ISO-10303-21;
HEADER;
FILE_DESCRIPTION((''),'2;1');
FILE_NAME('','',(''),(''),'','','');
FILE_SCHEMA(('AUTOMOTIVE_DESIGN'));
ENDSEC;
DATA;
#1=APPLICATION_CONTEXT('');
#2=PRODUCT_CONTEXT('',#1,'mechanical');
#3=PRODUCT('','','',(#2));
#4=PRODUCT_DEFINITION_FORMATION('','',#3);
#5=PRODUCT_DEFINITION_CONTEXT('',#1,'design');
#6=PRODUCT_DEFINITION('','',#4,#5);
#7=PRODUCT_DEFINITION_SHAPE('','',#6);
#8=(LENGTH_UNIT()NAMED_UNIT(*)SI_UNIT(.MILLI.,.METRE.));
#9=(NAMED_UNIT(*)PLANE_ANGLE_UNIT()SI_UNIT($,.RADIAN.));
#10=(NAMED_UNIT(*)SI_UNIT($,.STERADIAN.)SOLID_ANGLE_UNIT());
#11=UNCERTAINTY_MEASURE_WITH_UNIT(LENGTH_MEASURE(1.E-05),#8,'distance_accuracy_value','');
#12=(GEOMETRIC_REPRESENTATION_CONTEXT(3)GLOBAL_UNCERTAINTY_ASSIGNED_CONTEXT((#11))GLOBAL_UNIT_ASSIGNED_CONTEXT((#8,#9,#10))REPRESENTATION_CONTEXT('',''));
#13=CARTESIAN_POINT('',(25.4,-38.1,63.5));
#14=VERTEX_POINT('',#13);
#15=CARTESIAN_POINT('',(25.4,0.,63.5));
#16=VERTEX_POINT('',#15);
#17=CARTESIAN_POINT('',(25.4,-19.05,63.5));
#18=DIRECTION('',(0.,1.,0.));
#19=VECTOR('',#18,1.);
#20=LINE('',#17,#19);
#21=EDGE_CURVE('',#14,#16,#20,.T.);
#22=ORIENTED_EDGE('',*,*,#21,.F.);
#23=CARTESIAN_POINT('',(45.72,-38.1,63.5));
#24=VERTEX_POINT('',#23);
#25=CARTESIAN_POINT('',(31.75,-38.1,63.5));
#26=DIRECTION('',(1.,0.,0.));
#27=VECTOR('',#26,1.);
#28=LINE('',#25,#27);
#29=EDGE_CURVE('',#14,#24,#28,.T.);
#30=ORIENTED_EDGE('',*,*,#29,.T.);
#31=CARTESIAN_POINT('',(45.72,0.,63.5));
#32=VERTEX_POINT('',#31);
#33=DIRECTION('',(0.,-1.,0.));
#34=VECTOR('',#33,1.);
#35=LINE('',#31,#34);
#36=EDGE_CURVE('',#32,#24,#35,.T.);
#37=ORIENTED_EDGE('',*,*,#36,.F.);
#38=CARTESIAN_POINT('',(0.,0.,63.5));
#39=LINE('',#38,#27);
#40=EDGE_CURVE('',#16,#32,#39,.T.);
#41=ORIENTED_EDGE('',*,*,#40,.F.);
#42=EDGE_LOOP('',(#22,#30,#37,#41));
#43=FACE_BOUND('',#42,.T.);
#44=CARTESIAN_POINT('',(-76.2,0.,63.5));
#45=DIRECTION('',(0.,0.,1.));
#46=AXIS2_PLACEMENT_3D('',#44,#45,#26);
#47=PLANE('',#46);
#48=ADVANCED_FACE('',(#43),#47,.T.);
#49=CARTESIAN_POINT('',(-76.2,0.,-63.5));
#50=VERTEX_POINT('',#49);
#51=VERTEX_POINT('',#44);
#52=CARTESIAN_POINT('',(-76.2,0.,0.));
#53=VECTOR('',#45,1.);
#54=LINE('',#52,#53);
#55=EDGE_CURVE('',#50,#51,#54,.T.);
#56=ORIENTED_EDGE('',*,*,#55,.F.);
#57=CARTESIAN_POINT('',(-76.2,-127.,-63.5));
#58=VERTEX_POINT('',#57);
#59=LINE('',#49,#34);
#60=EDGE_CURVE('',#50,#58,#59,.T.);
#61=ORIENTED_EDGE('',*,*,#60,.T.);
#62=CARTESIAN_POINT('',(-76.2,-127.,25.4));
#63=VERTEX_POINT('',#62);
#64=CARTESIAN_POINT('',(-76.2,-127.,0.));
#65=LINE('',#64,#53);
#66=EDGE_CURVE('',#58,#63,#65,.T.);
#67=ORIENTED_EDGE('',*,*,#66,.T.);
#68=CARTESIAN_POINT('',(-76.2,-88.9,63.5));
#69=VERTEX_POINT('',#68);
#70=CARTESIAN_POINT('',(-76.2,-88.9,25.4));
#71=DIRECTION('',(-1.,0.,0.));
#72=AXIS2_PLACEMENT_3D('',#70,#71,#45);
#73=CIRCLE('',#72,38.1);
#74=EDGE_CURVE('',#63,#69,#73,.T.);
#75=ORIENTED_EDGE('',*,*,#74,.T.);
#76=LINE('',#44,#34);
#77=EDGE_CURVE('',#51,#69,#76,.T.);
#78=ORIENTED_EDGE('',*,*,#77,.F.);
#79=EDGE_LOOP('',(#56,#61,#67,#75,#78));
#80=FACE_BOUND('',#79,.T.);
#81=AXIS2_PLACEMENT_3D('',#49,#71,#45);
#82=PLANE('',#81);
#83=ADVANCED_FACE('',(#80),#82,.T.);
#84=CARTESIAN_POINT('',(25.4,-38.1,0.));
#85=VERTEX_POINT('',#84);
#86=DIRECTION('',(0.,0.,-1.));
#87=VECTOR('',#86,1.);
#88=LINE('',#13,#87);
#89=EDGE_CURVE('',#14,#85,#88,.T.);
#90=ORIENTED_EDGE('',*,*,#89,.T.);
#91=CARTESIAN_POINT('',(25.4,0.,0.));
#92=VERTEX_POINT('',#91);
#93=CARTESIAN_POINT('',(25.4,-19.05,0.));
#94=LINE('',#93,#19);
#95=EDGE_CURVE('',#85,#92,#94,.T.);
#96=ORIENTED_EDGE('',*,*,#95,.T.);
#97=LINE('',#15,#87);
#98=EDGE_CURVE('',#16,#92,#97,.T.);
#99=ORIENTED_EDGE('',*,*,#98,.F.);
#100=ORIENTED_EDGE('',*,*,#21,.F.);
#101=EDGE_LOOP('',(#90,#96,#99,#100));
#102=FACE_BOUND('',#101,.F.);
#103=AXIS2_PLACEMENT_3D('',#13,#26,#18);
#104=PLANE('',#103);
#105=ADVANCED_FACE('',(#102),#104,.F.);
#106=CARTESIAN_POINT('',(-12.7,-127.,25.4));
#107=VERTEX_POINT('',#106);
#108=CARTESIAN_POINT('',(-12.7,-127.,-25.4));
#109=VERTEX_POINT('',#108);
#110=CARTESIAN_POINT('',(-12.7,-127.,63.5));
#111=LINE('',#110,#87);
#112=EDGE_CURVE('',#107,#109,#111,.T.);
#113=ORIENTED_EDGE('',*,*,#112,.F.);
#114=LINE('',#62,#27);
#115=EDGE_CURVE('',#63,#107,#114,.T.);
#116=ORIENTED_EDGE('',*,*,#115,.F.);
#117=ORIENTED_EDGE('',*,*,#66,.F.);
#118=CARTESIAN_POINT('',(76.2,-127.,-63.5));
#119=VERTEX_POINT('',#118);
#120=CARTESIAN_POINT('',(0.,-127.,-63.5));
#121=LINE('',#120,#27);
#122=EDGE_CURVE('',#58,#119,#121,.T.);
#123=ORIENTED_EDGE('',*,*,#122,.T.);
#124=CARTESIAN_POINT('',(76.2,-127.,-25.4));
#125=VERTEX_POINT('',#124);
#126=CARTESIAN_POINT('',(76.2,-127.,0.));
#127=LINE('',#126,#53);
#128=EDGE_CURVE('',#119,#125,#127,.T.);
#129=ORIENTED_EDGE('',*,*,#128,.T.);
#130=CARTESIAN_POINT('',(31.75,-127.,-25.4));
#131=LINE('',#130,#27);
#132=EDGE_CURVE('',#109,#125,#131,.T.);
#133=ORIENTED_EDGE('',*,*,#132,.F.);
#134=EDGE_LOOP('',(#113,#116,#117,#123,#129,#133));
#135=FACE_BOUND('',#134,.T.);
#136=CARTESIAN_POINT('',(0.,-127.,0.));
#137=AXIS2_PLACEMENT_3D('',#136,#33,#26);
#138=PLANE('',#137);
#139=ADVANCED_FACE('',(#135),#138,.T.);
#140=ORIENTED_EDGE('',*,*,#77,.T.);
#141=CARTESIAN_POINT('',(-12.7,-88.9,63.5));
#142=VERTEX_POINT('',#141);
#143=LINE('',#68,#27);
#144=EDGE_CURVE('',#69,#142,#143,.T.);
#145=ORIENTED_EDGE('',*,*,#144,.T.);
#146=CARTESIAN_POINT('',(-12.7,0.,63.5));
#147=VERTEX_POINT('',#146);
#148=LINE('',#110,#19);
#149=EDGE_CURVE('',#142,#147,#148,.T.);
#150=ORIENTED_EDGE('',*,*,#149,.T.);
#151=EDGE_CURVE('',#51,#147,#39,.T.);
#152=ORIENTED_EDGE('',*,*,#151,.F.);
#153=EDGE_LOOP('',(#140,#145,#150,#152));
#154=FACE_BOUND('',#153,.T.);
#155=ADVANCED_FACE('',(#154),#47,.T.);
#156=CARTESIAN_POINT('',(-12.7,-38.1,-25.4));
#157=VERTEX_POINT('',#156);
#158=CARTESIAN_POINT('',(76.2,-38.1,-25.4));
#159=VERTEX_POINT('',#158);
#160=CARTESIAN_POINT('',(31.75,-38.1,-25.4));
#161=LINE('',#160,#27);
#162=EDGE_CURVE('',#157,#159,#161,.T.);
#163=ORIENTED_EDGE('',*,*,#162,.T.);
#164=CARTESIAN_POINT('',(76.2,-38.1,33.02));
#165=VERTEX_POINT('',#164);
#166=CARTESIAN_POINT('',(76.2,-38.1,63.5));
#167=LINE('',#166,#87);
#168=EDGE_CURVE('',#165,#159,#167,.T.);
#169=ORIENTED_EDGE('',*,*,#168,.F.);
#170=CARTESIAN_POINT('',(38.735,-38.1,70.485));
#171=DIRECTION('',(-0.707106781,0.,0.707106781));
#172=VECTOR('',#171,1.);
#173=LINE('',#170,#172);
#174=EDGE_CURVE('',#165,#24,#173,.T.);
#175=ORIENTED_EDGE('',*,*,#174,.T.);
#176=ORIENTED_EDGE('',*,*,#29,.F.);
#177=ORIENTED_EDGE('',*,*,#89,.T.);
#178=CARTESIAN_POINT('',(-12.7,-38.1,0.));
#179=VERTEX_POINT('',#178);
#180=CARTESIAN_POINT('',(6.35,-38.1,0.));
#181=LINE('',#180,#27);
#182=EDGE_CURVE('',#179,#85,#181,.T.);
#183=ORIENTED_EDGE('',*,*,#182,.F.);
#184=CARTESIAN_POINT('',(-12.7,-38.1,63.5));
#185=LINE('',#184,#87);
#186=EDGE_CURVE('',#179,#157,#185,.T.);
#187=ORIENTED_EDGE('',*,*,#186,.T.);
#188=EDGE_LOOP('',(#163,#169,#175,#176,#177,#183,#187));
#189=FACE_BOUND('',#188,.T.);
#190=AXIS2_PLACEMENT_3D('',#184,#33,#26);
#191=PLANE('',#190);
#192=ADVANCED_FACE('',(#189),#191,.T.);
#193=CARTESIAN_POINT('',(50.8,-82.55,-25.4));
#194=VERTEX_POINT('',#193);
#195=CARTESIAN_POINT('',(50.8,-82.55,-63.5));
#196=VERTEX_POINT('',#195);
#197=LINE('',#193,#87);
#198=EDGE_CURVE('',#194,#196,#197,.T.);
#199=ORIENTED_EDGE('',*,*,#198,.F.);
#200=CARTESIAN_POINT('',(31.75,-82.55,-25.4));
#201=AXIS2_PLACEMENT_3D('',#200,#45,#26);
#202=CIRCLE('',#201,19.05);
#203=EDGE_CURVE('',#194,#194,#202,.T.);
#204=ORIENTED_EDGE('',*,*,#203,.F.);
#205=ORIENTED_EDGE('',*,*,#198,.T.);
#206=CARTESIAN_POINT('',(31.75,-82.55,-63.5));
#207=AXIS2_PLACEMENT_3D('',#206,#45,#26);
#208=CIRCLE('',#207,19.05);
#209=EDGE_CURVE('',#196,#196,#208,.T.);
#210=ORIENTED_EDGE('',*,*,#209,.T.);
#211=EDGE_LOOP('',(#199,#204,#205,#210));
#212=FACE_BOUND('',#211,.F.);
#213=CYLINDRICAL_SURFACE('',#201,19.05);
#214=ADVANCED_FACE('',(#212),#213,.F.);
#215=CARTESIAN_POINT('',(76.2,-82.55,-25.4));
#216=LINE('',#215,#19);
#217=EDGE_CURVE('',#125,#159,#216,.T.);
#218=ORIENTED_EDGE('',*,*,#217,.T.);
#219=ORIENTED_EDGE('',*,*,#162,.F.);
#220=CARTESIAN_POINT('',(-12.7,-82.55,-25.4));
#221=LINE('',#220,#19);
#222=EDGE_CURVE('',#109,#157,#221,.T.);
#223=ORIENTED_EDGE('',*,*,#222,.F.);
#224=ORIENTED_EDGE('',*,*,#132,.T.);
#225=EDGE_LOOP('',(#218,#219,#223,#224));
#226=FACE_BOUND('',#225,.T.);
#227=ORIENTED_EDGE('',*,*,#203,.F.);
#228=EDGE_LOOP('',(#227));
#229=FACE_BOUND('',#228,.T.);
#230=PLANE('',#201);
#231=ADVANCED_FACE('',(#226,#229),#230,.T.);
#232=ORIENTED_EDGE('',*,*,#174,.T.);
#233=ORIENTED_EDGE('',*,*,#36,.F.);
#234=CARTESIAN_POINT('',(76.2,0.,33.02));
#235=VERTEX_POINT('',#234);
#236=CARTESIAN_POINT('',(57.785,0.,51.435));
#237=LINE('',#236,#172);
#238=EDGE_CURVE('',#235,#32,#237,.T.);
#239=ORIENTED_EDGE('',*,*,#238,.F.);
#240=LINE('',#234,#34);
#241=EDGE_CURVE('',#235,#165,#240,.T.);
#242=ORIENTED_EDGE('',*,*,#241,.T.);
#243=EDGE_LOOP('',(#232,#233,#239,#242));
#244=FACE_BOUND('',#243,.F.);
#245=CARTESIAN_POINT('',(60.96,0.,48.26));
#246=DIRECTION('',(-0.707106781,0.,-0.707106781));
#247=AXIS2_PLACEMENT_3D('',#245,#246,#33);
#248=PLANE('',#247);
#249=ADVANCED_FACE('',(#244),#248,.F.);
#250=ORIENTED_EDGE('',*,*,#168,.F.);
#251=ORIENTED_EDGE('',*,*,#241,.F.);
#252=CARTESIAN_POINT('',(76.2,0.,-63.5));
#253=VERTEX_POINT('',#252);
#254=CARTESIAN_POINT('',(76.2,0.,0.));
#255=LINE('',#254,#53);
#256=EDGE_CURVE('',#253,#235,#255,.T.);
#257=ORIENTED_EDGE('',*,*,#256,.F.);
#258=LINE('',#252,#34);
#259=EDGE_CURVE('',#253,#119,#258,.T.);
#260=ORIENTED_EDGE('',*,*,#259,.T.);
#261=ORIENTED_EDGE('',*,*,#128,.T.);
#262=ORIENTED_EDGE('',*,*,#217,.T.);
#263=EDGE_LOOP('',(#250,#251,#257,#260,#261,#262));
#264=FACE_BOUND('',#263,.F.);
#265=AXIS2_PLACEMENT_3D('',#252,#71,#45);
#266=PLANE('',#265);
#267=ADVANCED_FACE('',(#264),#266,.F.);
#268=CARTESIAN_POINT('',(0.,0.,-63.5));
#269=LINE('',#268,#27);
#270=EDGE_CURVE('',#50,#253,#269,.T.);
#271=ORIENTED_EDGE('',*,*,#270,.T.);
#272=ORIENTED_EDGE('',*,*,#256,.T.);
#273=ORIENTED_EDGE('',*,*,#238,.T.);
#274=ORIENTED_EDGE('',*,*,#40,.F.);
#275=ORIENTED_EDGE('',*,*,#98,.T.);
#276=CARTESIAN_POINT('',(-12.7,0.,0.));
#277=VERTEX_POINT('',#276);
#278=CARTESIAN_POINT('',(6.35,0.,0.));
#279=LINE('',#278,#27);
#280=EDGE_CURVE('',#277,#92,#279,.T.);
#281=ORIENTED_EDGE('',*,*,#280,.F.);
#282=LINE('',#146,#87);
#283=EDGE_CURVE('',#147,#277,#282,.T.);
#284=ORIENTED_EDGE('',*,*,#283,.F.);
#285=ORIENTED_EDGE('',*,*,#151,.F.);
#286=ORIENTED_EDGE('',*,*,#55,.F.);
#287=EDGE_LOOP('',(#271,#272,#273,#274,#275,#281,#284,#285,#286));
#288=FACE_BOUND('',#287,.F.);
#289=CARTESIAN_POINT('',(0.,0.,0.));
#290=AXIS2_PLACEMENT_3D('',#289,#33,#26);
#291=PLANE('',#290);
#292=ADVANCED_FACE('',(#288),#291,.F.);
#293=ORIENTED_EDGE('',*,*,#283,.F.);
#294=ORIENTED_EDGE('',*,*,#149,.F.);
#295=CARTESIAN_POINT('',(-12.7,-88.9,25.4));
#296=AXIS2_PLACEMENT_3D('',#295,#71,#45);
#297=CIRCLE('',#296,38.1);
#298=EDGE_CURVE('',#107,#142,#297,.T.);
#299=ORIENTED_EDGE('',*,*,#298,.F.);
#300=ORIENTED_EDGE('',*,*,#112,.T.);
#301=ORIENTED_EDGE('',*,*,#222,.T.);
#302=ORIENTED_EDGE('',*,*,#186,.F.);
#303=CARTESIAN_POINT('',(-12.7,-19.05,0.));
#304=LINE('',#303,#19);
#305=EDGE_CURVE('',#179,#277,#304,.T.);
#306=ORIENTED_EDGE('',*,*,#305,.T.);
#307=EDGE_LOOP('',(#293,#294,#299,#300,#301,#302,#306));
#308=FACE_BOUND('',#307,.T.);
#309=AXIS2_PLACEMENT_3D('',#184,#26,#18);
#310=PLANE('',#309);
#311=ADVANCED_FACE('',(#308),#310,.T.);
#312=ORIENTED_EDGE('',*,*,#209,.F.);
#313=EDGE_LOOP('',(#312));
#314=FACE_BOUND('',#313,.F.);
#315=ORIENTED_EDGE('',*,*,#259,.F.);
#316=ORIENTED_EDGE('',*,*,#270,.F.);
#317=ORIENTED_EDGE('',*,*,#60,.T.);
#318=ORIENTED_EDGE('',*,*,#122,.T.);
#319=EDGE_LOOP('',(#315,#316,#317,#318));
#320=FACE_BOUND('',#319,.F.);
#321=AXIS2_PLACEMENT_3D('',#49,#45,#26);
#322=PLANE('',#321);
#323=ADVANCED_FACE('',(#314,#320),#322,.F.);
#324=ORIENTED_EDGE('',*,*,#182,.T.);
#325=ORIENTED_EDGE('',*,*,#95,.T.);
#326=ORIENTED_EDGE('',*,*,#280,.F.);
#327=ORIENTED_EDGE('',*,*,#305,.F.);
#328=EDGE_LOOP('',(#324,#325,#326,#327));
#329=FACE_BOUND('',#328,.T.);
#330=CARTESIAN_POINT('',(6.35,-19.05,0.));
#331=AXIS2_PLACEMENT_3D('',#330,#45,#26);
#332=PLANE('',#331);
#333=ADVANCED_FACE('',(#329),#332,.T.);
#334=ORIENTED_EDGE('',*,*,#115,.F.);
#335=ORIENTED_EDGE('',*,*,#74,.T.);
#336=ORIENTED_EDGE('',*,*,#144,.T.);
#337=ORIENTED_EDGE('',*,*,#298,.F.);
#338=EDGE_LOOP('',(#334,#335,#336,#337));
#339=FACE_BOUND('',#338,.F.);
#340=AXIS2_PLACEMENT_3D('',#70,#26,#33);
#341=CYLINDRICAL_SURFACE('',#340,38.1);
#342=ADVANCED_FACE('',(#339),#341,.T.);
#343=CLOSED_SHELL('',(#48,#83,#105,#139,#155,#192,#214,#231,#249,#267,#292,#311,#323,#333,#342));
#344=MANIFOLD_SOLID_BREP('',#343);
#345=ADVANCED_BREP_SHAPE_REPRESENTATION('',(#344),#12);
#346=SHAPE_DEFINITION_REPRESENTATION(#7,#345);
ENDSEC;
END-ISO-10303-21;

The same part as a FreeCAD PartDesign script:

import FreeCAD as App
import Part
import Sketcher
Q = App.Units.Quantity


def edges_at(feature, points):
    """Names of the edges that pass closest to the given points."""
    edges = feature.Shape.Edges
    near = lambda p: min(range(len(edges)), key=lambda i: edges[i].distToShape(Part.Vertex(*p))[0])
    return sorted({f"Edge{near(p) + 1}" for p in points})


def add_polygon(sketch, points):
    """Adds a closed chain of lines whose ends are joined by coincident constraints."""
    first, n = sketch.GeometryCount, len(points)
    for a, b in zip(points, points[1:] + points[:1]):
        sketch.addGeometry(Part.LineSegment(App.Vector(*a, 0), App.Vector(*b, 0)), False)
    for i in range(n):
        sketch.addConstraint(Sketcher.Constraint("Coincident", first + i, 2, first + (i + 1) % n, 1))

doc = App.newDocument("Part")
body = doc.addObject("PartDesign::Body", "Body")

# Sketch on XZ plane
sketch1 = doc.addObject("Sketcher::SketchObject", "Sketch")
body.addObject(sketch1)
sketch1.AttachmentSupport = (doc.XZ_Plane, [""])
sketch1.MapMode = "FlatFace"
add_polygon(sketch1, [(-76, 64), (-76, -64), (76, -64), (76, 64)])  # lines 0-3
sketch1.addConstraint([
    Sketcher.Constraint("Vertical", 0),
    Sketcher.Constraint("Horizontal", 1),
    Sketcher.Constraint("Vertical", 2),
    Sketcher.Constraint("Horizontal", 3),
    Sketcher.Constraint("Symmetric", 0, 2, 2, 2, -1, 1),
    Sketcher.Constraint("DistanceX", 1, 1, 1, 2, Q("6 in")),
    Sketcher.Constraint("DistanceY", 0, 2, 0, 1, Q("5 in")),
])
pad1 = doc.addObject("PartDesign::Pad", "Pad")
body.addObject(pad1)
pad1.Profile = sketch1
pad1.Length = Q("5 in")

# Sketch on XY plane
sketch2 = doc.addObject("Sketcher::SketchObject", "Sketch001")
body.addObject(sketch2)
sketch2.AttachmentSupport = (doc.XY_Plane, [""])
sketch2.MapMode = "FlatFace"
sketch2.AttachmentOffset = App.Placement(App.Vector(0, 0, 2.5 * 25.4), App.Rotation())
add_polygon(sketch2, [(-13, -38), (-13, -127), (76, -127), (76, -38)])  # lines 0-3
sketch2.addConstraint([
    Sketcher.Constraint("Vertical", 0),
    Sketcher.Constraint("Horizontal", 1),
    Sketcher.Constraint("Vertical", 2),
    Sketcher.Constraint("Horizontal", 3),
    Sketcher.Constraint("Equal", 3, 0),
    Sketcher.Constraint("DistanceX", 1, 1, 1, 2, Q("3.5 in")),
    Sketcher.Constraint("DistanceY", 0, 2, -1, 1, Q("5 in")),
    Sketcher.Constraint("DistanceX", -1, 1, 1, 2, Q("3 in")),
])
pocket1 = doc.addObject("PartDesign::Pocket", "Pocket")
body.addObject(pocket1)
pocket1.Profile = sketch2
pocket1.Length = Q("3.5 in")

# Sketch on XY plane
sketch3 = doc.addObject("Sketcher::SketchObject", "Sketch002")
body.addObject(sketch3)
sketch3.AttachmentSupport = (doc.XY_Plane, [""])
sketch3.MapMode = "FlatFace"
sketch3.AttachmentOffset = App.Placement(App.Vector(0, 0, -1 * 25.4), App.Rotation())
sketch3.addGeometry(Part.Circle(App.Vector(32, -83, 0), App.Vector(0, 0, 1), 19), False)
sketch3.addConstraint([
    Sketcher.Constraint("Diameter", 0, Q("1.5 in")),
    Sketcher.Constraint("DistanceX", -1, 1, 0, 3, Q("1.25 in")),
    Sketcher.Constraint("DistanceY", 0, 3, -1, 1, Q("3.25 in")),
])
pocket2 = doc.addObject("PartDesign::Pocket", "Pocket001")
body.addObject(pocket2)
pocket2.Profile = sketch3
pocket2.Length = Q("2 in")

# Sketch on XY plane
sketch4 = doc.addObject("Sketcher::SketchObject", "Sketch003")
body.addObject(sketch4)
sketch4.AttachmentSupport = (doc.XY_Plane, [""])
sketch4.MapMode = "FlatFace"
sketch4.AttachmentOffset = App.Placement(App.Vector(0, 0, 2.5 * 25.4), App.Rotation())
add_polygon(sketch4, [(-13, 0), (-13, -38), (25, -38), (25, 0)])  # lines 0-3
sketch4.addConstraint([
    Sketcher.Constraint("Vertical", 0),
    Sketcher.Constraint("Horizontal", 1),
    Sketcher.Constraint("Vertical", 2),
    Sketcher.Constraint("Horizontal", 3),
    Sketcher.Constraint("PointOnObject", 2, 2, -1),
    Sketcher.Constraint("Equal", 3, 0),
    Sketcher.Constraint("DistanceX", 1, 1, 1, 2, Q("1.5 in")),
    Sketcher.Constraint("DistanceX", -1, 1, 1, 2, Q("1 in")),
])
pocket3 = doc.addObject("PartDesign::Pocket", "Pocket002")
body.addObject(pocket3)
pocket3.Profile = sketch4
pocket3.Length = Q("2.5 in")
doc.recompute()

chamfer = doc.addObject("PartDesign::Chamfer", "Chamfer")
body.addObject(chamfer)
chamfer.Base = (pocket3, edges_at(pocket3, [(76.2, -19.05, 63.5)]))
chamfer.Size = Q("1.2 in")
doc.recompute()

fillet = doc.addObject("PartDesign::Fillet", "Fillet")
body.addObject(fillet)
fillet.Base = (chamfer, edges_at(chamfer, [(-44.45, -127, 63.5)]))
fillet.Radius = Q("1.5 in")

doc.recompute()
